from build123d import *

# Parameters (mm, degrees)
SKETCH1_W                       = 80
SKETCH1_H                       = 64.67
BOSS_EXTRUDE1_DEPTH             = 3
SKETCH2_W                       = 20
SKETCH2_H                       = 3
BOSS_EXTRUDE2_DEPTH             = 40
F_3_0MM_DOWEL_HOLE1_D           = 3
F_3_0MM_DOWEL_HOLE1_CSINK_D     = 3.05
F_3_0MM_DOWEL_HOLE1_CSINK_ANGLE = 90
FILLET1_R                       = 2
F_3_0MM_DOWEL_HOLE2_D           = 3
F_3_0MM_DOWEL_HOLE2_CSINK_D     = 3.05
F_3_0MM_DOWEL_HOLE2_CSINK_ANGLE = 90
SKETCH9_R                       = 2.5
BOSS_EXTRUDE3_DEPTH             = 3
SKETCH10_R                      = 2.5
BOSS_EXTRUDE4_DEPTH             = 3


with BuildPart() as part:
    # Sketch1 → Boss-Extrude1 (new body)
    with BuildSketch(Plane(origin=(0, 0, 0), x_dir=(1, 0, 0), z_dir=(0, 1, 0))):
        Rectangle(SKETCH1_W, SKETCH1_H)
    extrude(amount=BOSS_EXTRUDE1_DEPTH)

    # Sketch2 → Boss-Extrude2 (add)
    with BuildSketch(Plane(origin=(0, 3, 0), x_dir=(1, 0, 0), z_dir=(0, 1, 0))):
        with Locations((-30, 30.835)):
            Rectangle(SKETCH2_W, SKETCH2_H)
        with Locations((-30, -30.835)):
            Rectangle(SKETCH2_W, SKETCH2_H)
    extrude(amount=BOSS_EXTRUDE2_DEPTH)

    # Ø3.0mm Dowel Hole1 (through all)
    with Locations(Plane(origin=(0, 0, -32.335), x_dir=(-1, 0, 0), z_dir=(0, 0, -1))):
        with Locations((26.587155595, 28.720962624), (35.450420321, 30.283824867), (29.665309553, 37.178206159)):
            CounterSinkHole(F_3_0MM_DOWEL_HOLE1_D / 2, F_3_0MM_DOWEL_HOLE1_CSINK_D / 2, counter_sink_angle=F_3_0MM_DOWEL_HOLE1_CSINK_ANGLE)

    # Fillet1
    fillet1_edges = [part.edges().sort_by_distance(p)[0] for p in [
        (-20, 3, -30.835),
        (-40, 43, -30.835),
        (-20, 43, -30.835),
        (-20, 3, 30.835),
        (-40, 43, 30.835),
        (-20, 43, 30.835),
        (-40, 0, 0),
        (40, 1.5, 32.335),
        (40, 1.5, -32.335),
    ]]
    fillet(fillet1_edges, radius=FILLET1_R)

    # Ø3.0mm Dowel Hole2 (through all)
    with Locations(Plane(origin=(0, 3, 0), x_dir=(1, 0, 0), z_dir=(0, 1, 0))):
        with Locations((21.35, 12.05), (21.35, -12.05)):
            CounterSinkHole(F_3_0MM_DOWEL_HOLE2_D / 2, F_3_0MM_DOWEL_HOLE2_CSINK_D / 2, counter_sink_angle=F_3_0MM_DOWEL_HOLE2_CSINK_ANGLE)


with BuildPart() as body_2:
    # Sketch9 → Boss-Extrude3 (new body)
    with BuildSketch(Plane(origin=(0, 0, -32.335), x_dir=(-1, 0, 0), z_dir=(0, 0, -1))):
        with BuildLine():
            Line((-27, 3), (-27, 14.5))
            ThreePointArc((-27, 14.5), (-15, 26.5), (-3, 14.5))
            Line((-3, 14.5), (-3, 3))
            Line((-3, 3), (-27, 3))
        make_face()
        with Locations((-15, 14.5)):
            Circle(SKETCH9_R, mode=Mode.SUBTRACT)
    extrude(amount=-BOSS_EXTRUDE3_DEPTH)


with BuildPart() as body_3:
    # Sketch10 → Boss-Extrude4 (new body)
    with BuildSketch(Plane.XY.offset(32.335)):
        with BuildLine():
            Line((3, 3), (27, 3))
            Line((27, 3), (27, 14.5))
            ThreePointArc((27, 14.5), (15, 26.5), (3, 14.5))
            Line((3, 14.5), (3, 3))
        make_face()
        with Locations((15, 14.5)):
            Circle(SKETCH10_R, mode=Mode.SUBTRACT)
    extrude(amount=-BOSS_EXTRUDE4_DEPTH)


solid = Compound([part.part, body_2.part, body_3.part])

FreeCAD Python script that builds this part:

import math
import FreeCAD as App
import Part
import Sketcher
from FreeCAD import Vector
Q = App.Units.Quantity


def edges_at(feature, points):
    """Names of the edges that pass closest to the given points."""
    edges = feature.Shape.Edges
    near = lambda p: min(range(len(edges)), key=lambda i: edges[i].distToShape(Part.Vertex(*p))[0])
    return sorted({f"Edge{near(p) + 1}" for p in points})

doc = App.newDocument("Part")
body = doc.addObject("PartDesign::Body", "Body")

sketch1 = body.newObject("Sketcher::SketchObject", "Sketch")
sketch1.AttachmentSupport = (doc.getObject("XZ_Plane"), [""])
sketch1.MapMode = "FlatFace"
sketch1.addGeometry([
    Part.LineSegment(Vector(-40, -32, 0), Vector(-40, 32, 0)),
    Part.LineSegment(Vector(-40, 32, 0), Vector(40, 32, 0)),
    Part.LineSegment(Vector(40, 32, 0), Vector(40, -32, 0)),
    Part.LineSegment(Vector(40, -32, 0), Vector(-40, -32, 0)),
], False)
sketch1.addConstraint([
    Sketcher.Constraint("Coincident", 0, 2, 1, 1),
    Sketcher.Constraint("Coincident", 1, 2, 2, 1),
    Sketcher.Constraint("Coincident", 2, 2, 3, 1),
    Sketcher.Constraint("Coincident", 3, 2, 0, 1),
    Sketcher.Constraint("Vertical", 0),
    Sketcher.Constraint("Horizontal", 1),
    Sketcher.Constraint("Vertical", 2),
    Sketcher.Constraint("Horizontal", 3),
    Sketcher.Constraint("Symmetric", 0, 2, 2, 2, -1, 1),
    Sketcher.Constraint("DistanceX", 1, 1, 1, 2, Q("80 mm")),
    Sketcher.Constraint("DistanceY", 0, 1, 0, 2, Q("64.67 mm")),
])
pad1 = body.newObject("PartDesign::Pad", "Pad")
pad1.Profile = sketch1
pad1.Length = 3
pad1.Reversed = True

sketch2 = body.newObject("Sketcher::SketchObject", "Sketch001")
sketch2.AttachmentSupport = (doc.getObject("XZ_Plane"), [""])
sketch2.MapMode = "FlatFace"
sketch2.AttachmentOffset = App.Placement(Vector(0, 0, -3), App.Rotation())
sketch2.addGeometry([
    Part.LineSegment(Vector(-40, -32.3, 0), Vector(-40, -29.3, 0)),
    Part.LineSegment(Vector(-40, -29.3, 0), Vector(-20, -29.3, 0)),
    Part.LineSegment(Vector(-20, -29.3, 0), Vector(-20, -32.3, 0)),
    Part.LineSegment(Vector(-20, -32.3, 0), Vector(-40, -32.3, 0)),
    Part.LineSegment(Vector(-40, 29.3, 0), Vector(-40, 32.3, 0)),
    Part.LineSegment(Vector(-40, 32.3, 0), Vector(-20, 32.3, 0)),
    Part.LineSegment(Vector(-20, 32.3, 0), Vector(-20, 29.3, 0)),
    Part.LineSegment(Vector(-20, 29.3, 0), Vector(-40, 29.3, 0)),
], False)
sketch2.addConstraint([
    Sketcher.Constraint("Coincident", 0, 2, 1, 1),
    Sketcher.Constraint("Coincident", 1, 2, 2, 1),
    Sketcher.Constraint("Coincident", 2, 2, 3, 1),
    Sketcher.Constraint("Coincident", 3, 2, 0, 1),
    Sketcher.Constraint("Coincident", 4, 2, 5, 1),
    Sketcher.Constraint("Coincident", 5, 2, 6, 1),
    Sketcher.Constraint("Coincident", 6, 2, 7, 1),
    Sketcher.Constraint("Coincident", 7, 2, 4, 1),
    Sketcher.Constraint("Vertical", 0),
    Sketcher.Constraint("Horizontal", 1),
    Sketcher.Constraint("Vertical", 2),
    Sketcher.Constraint("Horizontal", 3),
    Sketcher.Constraint("Vertical", 4),
    Sketcher.Constraint("Horizontal", 5),
    Sketcher.Constraint("Vertical", 6),
    Sketcher.Constraint("Horizontal", 7),
    Sketcher.Constraint("Symmetric", 3, 2, 4, 2, -1),
    Sketcher.Constraint("Symmetric", 1, 2, 6, 2, -1),
    Sketcher.Constraint("DistanceX", 1, 1, 1, 2, Q("20 mm")),
    Sketcher.Constraint("DistanceY", 0, 1, 0, 2, Q("3 mm")),
    Sketcher.Constraint("DistanceX", 0, 2, -1, 1, Q("40 mm")),
    Sketcher.Constraint("DistanceY", 0, 2, 4, 2, Q("61.67 mm")),
])
pad2 = body.newObject("PartDesign::Pad", "Pad001")
pad2.Profile = sketch2
pad2.Length = 40
pad2.Reversed = True

sketch3 = body.newObject("Sketcher::SketchObject", "Sketch002")
sketch3.AttachmentSupport = (doc.getObject("XY_Plane"), [""])
sketch3.MapMode = "FlatFace"
sketch3.AttachmentOffset = App.Placement(Vector(0, 0, -32.335), App.Rotation())
sketch3.addGeometry([
    Part.Circle(Vector(-26.6, 28.7, 0), Vector(0, 0, 1), 1.5),
    Part.Circle(Vector(-35.5, 30.3, 0), Vector(0, 0, 1), 1.5),
    Part.Circle(Vector(-29.7, 37.2, 0), Vector(0, 0, 1), 1.5),
], False)
sketch3.addConstraint([
    Sketcher.Constraint("Equal", 0, 1),
    Sketcher.Constraint("Equal", 1, 2),
    Sketcher.Constraint("Diameter", 0, Q("3 mm")),
    Sketcher.Constraint("DistanceX", 1, 3, -1, 1, Q("35.45042 mm")),
    Sketcher.Constraint("DistanceX", 2, 3, -1, 1, Q("29.66531 mm")),
    Sketcher.Constraint("DistanceY", 1, 3, 2, 3, Q("6.894381 mm")),
    Sketcher.Constraint("DistanceX", 0, 3, -1, 1, Q("26.587156 mm")),
    Sketcher.Constraint("DistanceY", -1, 1, 0, 3, Q("28.720963 mm")),
    Sketcher.Constraint("DistanceY", -1, 1, 1, 3, Q("30.283825 mm")),
])
doc.recompute()
hole = body.newObject("PartDesign::Hole", "Hole")
hole.Profile = sketch3
hole.ThreadType = "None"
hole.Diameter = 3
hole.DepthType = "ThroughAll"
hole.HoleCutType = "Countersink"
hole.HoleCutDiameter = 3.05
hole.HoleCutCountersinkAngle = 90
hole.Reversed = True
doc.recompute()

fillet = body.newObject("PartDesign::Fillet", "Fillet")
fillet.Base = (hole, edges_at(hole, [
    (-20, 3, -30.835),
    (-40, 43, -30.835),
    (-20, 43, -30.835),
    (-20, 3, 30.835),
    (-40, 43, 30.835),
    (-20, 43, 30.835),
    (-40, 0, 0),
    (40, 1.5, 32.335),
    (40, 1.5, -32.335),
]))
fillet.Radius = 2

sketch4 = body.newObject("Sketcher::SketchObject", "Sketch003")
sketch4.AttachmentSupport = (doc.getObject("XZ_Plane"), [""])
sketch4.MapMode = "FlatFace"
sketch4.AttachmentOffset = App.Placement(Vector(0, 0, -3), App.Rotation())
sketch4.addGeometry([
    Part.Circle(Vector(21.4, -12.1, 0), Vector(0, 0, 1), 1.5),
    Part.Circle(Vector(21.4, 12.1, 0), Vector(0, 0, 1), 1.5),
], False)
sketch4.addConstraint([
    Sketcher.Constraint("Equal", 0, 1),
    Sketcher.Constraint("Symmetric", 0, 3, 1, 3, -1),
    Sketcher.Constraint("Diameter", 0, Q("3 mm")),
    Sketcher.Constraint("DistanceY", 0, 3, 1, 3, Q("24.1 mm")),
    Sketcher.Constraint("DistanceX", -1, 1, 0, 3, Q("21.35 mm")),
])
doc.recompute()
hole2 = body.newObject("PartDesign::Hole", "Hole001")
hole2.Profile = sketch4
hole2.ThreadType = "None"
hole2.Diameter = 3
hole2.DepthType = "ThroughAll"
hole2.HoleCutType = "Countersink"
hole2.HoleCutDiameter = 3.05
hole2.HoleCutCountersinkAngle = 90
hole2.Reversed = True
body2 = doc.addObject("PartDesign::Body", "Body001")

sketch5 = body2.newObject("Sketcher::SketchObject", "Sketch004")
sketch5.AttachmentSupport = (doc.getObject("XY_Plane001"), [""])
sketch5.MapMode = "FlatFace"
sketch5.AttachmentOffset = App.Placement(Vector(0, 0, -32.335), App.Rotation())
sketch5.addGeometry([
    Part.LineSegment(Vector(27, 14.5, 0), Vector(27, 3, 0)),
    Part.LineSegment(Vector(27, 3, 0), Vector(3, 3, 0)),
    Part.LineSegment(Vector(3, 3, 0), Vector(3, 14.5, 0)),
    Part.ArcOfCircle(Part.Circle(Vector(15, 14.5, 0), Vector(0, 0, 1), 12), math.radians(0), math.radians(180)),
    Part.Circle(Vector(15, 14.5, 0), Vector(0, 0, 1), 2.5),
], False)
sketch5.addConstraint([
    Sketcher.Constraint("Coincident", 0, 2, 1, 1),
    Sketcher.Constraint("Coincident", 1, 2, 2, 1),
    Sketcher.Constraint("Tangent", 2, 2, 3, 2),
    Sketcher.Constraint("Tangent", 3, 1, 0, 1),
    Sketcher.Constraint("Vertical", 0),
    Sketcher.Constraint("Horizontal", 1),
    Sketcher.Constraint("Vertical", 2),
    Sketcher.Constraint("Coincident", 4, 3, 3, 3),
    Sketcher.Constraint("Diameter", 4, Q("5 mm")),
    Sketcher.Constraint("Radius", 3, Q("12 mm")),
    Sketcher.Constraint("DistanceY", 0, 2, 0, 1, Q("11.5 mm")),
    Sketcher.Constraint("DistanceX", -1, 1, 3, 3, Q("15 mm")),
    Sketcher.Constraint("DistanceY", -1, 1, 0, 2, Q("3 mm")),
])
pad3 = body2.newObject("PartDesign::Pad", "Pad002")
pad3.Profile = sketch5
pad3.Length = 3
body3 = doc.addObject("PartDesign::Body", "Body002")

sketch6 = body3.newObject("Sketcher::SketchObject", "Sketch005")
sketch6.AttachmentSupport = (doc.getObject("XY_Plane002"), [""])
sketch6.MapMode = "FlatFace"
sketch6.AttachmentOffset = App.Placement(Vector(0, 0, 32.335), App.Rotation())
sketch6.addGeometry([
    Part.LineSegment(Vector(3, 3, 0), Vector(27, 3, 0)),
    Part.LineSegment(Vector(27, 3, 0), Vector(27, 14.5, 0)),
    Part.ArcOfCircle(Part.Circle(Vector(15, 14.5, 0), Vector(0, 0, 1), 12), math.radians(0), math.radians(180)),
    Part.LineSegment(Vector(3, 14.5, 0), Vector(3, 3, 0)),
    Part.Circle(Vector(15, 14.5, 0), Vector(0, 0, 1), 2.5),
], False)
sketch6.addConstraint([
    Sketcher.Constraint("Coincident", 0, 2, 1, 1),
    Sketcher.Constraint("Tangent", 1, 2, 2, 1),
    Sketcher.Constraint("Tangent", 2, 2, 3, 1),
    Sketcher.Constraint("Coincident", 3, 2, 0, 1),
    Sketcher.Constraint("Horizontal", 0),
    Sketcher.Constraint("Vertical", 1),
    Sketcher.Constraint("Vertical", 3),
    Sketcher.Constraint("Coincident", 4, 3, 2, 3),
    Sketcher.Constraint("Diameter", 4, Q("5 mm")),
    Sketcher.Constraint("Radius", 2, Q("12 mm")),
    Sketcher.Constraint("DistanceY", 1, 1, 1, 2, Q("11.5 mm")),
    Sketcher.Constraint("DistanceX", -1, 1, 2, 3, Q("15 mm")),
    Sketcher.Constraint("DistanceY", -1, 1, 0, 2, Q("3 mm")),
])
pad4 = body3.newObject("PartDesign::Pad", "Pad003")
pad4.Profile = sketch6
pad4.Length = 3
pad4.Reversed = True

doc.recompute()
